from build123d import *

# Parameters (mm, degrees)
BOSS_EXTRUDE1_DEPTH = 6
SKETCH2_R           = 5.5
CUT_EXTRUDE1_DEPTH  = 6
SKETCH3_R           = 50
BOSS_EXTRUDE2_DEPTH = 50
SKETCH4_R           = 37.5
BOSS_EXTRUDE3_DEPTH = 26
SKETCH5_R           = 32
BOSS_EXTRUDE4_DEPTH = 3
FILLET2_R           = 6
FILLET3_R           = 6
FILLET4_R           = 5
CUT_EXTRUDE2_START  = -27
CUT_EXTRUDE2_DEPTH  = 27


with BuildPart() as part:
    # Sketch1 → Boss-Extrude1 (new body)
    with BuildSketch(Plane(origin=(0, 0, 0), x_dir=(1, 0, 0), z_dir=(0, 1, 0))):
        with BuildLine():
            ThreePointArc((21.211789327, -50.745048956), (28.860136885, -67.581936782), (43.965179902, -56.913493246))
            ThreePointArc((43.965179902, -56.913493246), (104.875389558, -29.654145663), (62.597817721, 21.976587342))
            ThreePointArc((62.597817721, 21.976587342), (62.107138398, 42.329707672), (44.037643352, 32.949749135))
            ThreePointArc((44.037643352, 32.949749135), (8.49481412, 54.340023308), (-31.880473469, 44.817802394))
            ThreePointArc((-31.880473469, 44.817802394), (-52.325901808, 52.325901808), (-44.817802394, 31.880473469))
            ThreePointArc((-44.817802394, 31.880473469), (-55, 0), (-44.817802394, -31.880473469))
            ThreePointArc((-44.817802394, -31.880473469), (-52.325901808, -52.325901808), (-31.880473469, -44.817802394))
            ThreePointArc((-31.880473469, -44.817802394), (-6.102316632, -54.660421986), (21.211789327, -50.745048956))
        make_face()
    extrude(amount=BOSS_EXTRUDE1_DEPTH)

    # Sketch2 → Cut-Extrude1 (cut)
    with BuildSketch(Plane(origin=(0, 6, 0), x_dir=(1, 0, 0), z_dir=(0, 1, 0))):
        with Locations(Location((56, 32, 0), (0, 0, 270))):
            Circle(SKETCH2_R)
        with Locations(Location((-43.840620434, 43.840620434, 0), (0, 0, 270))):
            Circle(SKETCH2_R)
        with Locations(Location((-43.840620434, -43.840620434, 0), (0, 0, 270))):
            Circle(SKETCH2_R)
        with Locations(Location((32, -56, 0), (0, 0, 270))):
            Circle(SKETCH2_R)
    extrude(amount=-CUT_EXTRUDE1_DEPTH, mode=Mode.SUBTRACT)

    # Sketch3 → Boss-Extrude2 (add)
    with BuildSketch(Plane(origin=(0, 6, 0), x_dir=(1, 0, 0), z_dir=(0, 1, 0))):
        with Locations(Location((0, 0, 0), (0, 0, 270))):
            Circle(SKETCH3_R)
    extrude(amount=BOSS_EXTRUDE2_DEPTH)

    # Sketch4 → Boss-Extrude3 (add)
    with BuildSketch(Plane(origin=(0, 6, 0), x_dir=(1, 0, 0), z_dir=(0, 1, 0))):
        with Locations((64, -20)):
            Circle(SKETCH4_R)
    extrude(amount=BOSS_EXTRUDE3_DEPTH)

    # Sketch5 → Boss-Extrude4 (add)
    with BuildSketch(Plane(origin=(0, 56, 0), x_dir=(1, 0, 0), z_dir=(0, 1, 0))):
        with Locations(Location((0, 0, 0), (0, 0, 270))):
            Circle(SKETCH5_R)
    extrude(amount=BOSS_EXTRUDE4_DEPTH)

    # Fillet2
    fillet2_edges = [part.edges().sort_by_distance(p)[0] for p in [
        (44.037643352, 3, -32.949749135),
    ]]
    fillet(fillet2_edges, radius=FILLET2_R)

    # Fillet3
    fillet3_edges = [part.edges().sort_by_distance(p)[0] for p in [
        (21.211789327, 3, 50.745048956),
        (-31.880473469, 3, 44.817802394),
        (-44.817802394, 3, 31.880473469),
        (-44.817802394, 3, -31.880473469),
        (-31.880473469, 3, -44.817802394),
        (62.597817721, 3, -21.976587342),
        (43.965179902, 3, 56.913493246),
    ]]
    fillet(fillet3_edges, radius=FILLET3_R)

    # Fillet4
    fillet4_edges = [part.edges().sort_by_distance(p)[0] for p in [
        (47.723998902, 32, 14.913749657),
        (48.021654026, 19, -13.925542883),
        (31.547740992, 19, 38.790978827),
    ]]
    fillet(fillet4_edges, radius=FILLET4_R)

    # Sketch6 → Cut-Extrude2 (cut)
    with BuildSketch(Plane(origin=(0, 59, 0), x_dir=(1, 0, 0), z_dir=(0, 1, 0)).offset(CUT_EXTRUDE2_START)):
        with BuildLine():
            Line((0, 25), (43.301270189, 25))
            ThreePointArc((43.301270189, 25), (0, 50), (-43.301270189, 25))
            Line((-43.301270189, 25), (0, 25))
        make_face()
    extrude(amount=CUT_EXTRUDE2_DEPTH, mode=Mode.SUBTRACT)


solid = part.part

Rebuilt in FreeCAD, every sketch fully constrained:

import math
import FreeCAD as App
import Part
import Sketcher


def edges_at(feature, points):
    """Names of the edges that pass closest to the given points."""
    edges = feature.Shape.Edges
    near = lambda p: min(range(len(edges)), key=lambda i: edges[i].distToShape(Part.Vertex(*p))[0])
    return sorted({f"Edge{near(p) + 1}" for p in points})

doc = App.newDocument("Part")
body = doc.addObject("PartDesign::Body", "Body")

# Sketch on XZ plane
sketch1 = doc.addObject("Sketcher::SketchObject", "Sketch")
body.addObject(sketch1)
sketch1.AttachmentSupport = (doc.XZ_Plane, [""])
sketch1.MapMode = "FlatFace"
sketch1.addGeometry([
    Part.ArcOfCircle(Part.Circle(App.Vector(32, 56, 0), App.Vector(0, 0, 1), 12), math.radians(4.365833), math.radians(205.970772)),  # 0
    Part.ArcOfCircle(Part.Circle(App.Vector(64, 20, 0), App.Vector(0, 0, 1), 42), math.radians(-91.913192), math.radians(118.490923)),  # 1
    Part.ArcOfCircle(Part.Circle(App.Vector(56, -32, 0), App.Vector(0, 0, 1), 12), math.radians(-175.460534), math.radians(56.645462)),  # 2
    Part.ArcOfCircle(Part.Circle(App.Vector(0, 0, 0), App.Vector(0, 0, 1), 55), math.radians(-125.425576), math.radians(-36.80449)),  # 3
    Part.ArcOfCircle(Part.Circle(App.Vector(-43.84062, -43.84062, 0), App.Vector(0, 0, 1), 12), math.radians(94.670872), math.radians(355.329128)),  # 4
    Part.ArcOfCircle(Part.Circle(App.Vector(0, 0, 0), App.Vector(0, 0, 1), 55), math.radians(144.574424), math.radians(215.425576)),  # 5
    Part.ArcOfCircle(Part.Circle(App.Vector(-43.84062, 43.84062, 0), App.Vector(0, 0, 1), 12), math.radians(4.670872), math.radians(265.329128)),  # 6
    Part.ArcOfCircle(Part.Circle(App.Vector(0, 0, 0), App.Vector(0, 0, 1), 55), math.radians(67.314728), math.radians(125.425576)),  # 7
], False)
sketch1.addConstraint([
    Sketcher.Constraint("Coincident", 0, 1, 1, 2),
    Sketcher.Constraint("Coincident", 1, 1, 2, 2),
    Sketcher.Constraint("Coincident", 2, 1, 3, 2),
    Sketcher.Constraint("Coincident", 3, 1, 4, 2),
    Sketcher.Constraint("Coincident", 4, 1, 5, 2),
    Sketcher.Constraint("Coincident", 5, 1, 6, 2),
    Sketcher.Constraint("Coincident", 6, 1, 7, 2),
    Sketcher.Constraint("Coincident", 7, 1, 0, 2),
    Sketcher.Constraint("Coincident", 3, 3, -1, 1),
    Sketcher.Constraint("Coincident", 5, 3, -1, 1),
    Sketcher.Constraint("Coincident", 7, 3, -1, 1),
    Sketcher.Constraint("Equal", 0, 2),
    Sketcher.Constraint("Equal", 2, 4),
    Sketcher.Constraint("Equal", 3, 5),
    Sketcher.Constraint("Equal", 4, 6),
    Sketcher.Constraint("Equal", 5, 7),
    Sketcher.Constraint("Symmetric", 4, 3, 6, 3, -1),
    Sketcher.Constraint("Radius", 0, 12.0),
    Sketcher.Constraint("Radius", 1, 42.0),
    Sketcher.Constraint("Radius", 3, 55.0),
    Sketcher.Constraint("DistanceX", -1, 1, 0, 3, 32.0),
    Sketcher.Constraint("DistanceY", -1, 1, 0, 3, 56.0),
    Sketcher.Constraint("DistanceX", -1, 1, 1, 3, 64.0),
    Sketcher.Constraint("DistanceY", -1, 1, 1, 3, 20.0),
    Sketcher.Constraint("DistanceX", -1, 1, 2, 3, 56.0),
    Sketcher.Constraint("DistanceY", 2, 3, -1, 1, 32.0),
    Sketcher.Constraint("DistanceX", 4, 3, -1, 1, 43.84062),
    Sketcher.Constraint("DistanceY", 4, 3, -1, 1, 43.84062),
])
pad1 = doc.addObject("PartDesign::Pad", "Pad")
body.addObject(pad1)
pad1.Profile = sketch1
pad1.Length = 6
pad1.Reversed = True

# Sketch on XZ plane
sketch2 = doc.addObject("Sketcher::SketchObject", "Sketch001")
body.addObject(sketch2)
sketch2.AttachmentSupport = (doc.XZ_Plane, [""])
sketch2.MapMode = "FlatFace"
sketch2.AttachmentOffset = App.Placement(App.Vector(0, 0, -6), App.Rotation())
sketch2.addGeometry([
    Part.Circle(App.Vector(56, -32, 0), App.Vector(0, 0, 1), 5.5),
    Part.Circle(App.Vector(-43.84062, -43.84062, 0), App.Vector(0, 0, 1), 5.5),
    Part.Circle(App.Vector(-43.84062, 43.84062, 0), App.Vector(0, 0, 1), 5.5),
    Part.Circle(App.Vector(32, 56, 0), App.Vector(0, 0, 1), 5.5),
], False)
sketch2.addConstraint([
    Sketcher.Constraint("Equal", 0, 1),
    Sketcher.Constraint("Equal", 1, 2),
    Sketcher.Constraint("Equal", 2, 3),
    Sketcher.Constraint("Symmetric", 1, 3, 2, 3, -1),
    Sketcher.Constraint("Diameter", 0, 11.0),
    Sketcher.Constraint("DistanceX", -1, 1, 0, 3, 56.0),
    Sketcher.Constraint("DistanceY", 0, 3, -1, 1, 32.0),
    Sketcher.Constraint("DistanceX", -1, 1, 3, 3, 32.0),
    Sketcher.Constraint("DistanceY", -1, 1, 3, 3, 56.0),
    Sketcher.Constraint("DistanceX", 1, 3, -1, 1, 43.84062),
    Sketcher.Constraint("DistanceY", 1, 3, -1, 1, 43.84062),
])
pocket1 = doc.addObject("PartDesign::Pocket", "Pocket")
body.addObject(pocket1)
pocket1.Profile = sketch2
pocket1.Length = 6
pocket1.Reversed = True

# Sketch on XZ plane
sketch3 = doc.addObject("Sketcher::SketchObject", "Sketch002")
body.addObject(sketch3)
sketch3.AttachmentSupport = (doc.XZ_Plane, [""])
sketch3.MapMode = "FlatFace"
sketch3.AttachmentOffset = App.Placement(App.Vector(0, 0, -6), App.Rotation())
sketch3.addGeometry(Part.Circle(App.Vector(0, 0, 0), App.Vector(0, 0, 1), 50), False)
sketch3.addConstraint([
    Sketcher.Constraint("Coincident", 0, 3, -1, 1),
    Sketcher.Constraint("Diameter", 0, 100.0),
])
pad2 = doc.addObject("PartDesign::Pad", "Pad001")
body.addObject(pad2)
pad2.Profile = sketch3
pad2.Length = 50
pad2.Reversed = True

# Sketch on XZ plane
sketch4 = doc.addObject("Sketcher::SketchObject", "Sketch003")
body.addObject(sketch4)
sketch4.AttachmentSupport = (doc.XZ_Plane, [""])
sketch4.MapMode = "FlatFace"
sketch4.AttachmentOffset = App.Placement(App.Vector(0, 0, -6), App.Rotation())
sketch4.addGeometry(Part.Circle(App.Vector(64, 20, 0), App.Vector(0, 0, 1), 37.5), False)
sketch4.addConstraint([
    Sketcher.Constraint("Diameter", 0, 75.0),
    Sketcher.Constraint("DistanceX", -1, 1, 0, 3, 64.0),
    Sketcher.Constraint("DistanceY", -1, 1, 0, 3, 20.0),
])
pad3 = doc.addObject("PartDesign::Pad", "Pad002")
body.addObject(pad3)
pad3.Profile = sketch4
pad3.Length = 26
pad3.Reversed = True

# Sketch on XZ plane
sketch5 = doc.addObject("Sketcher::SketchObject", "Sketch004")
body.addObject(sketch5)
sketch5.AttachmentSupport = (doc.XZ_Plane, [""])
sketch5.MapMode = "FlatFace"
sketch5.AttachmentOffset = App.Placement(App.Vector(0, 0, -56), App.Rotation())
sketch5.addGeometry(Part.Circle(App.Vector(0, 0, 0), App.Vector(0, 0, 1), 32), False)
sketch5.addConstraint([
    Sketcher.Constraint("Coincident", 0, 3, -1, 1),
    Sketcher.Constraint("Diameter", 0, 64.0),
])
pad4 = doc.addObject("PartDesign::Pad", "Pad003")
body.addObject(pad4)
pad4.Profile = sketch5
pad4.Length = 3
pad4.Reversed = True
doc.recompute()

fillet = doc.addObject("PartDesign::Fillet", "Fillet")
body.addObject(fillet)
fillet.Base = (pad4, edges_at(pad4, [(44.038, 3, -32.95)]))
fillet.Radius = 6
doc.recompute()

fillet2 = doc.addObject("PartDesign::Fillet", "Fillet001")
body.addObject(fillet2)
fillet2.Base = (fillet, edges_at(fillet, [
    (21.212, 3, 50.745),
    (-31.88, 3, 44.818),
    (-44.818, 3, 31.88),
    (-44.818, 3, -31.88),
    (-31.88, 3, -44.818),
    (62.598, 3, -21.977),
    (43.965, 3, 56.913),
]))
fillet2.Radius = 6
doc.recompute()

fillet3 = doc.addObject("PartDesign::Fillet", "Fillet002")
body.addObject(fillet3)
fillet3.Base = (fillet2, edges_at(fillet2, [(47.724, 32, 14.914), (48.022, 19, -13.926), (31.548, 19, 38.791)]))
fillet3.Radius = 5

# Sketch on XZ plane
sketch6 = doc.addObject("Sketcher::SketchObject", "Sketch005")
body.addObject(sketch6)
sketch6.AttachmentSupport = (doc.XZ_Plane, [""])
sketch6.MapMode = "FlatFace"
sketch6.AttachmentOffset = App.Placement(App.Vector(0, 0, -32), App.Rotation())
sketch6.addGeometry([
    Part.ArcOfCircle(Part.Circle(App.Vector(0, 0, 0), App.Vector(0, 0, 1), 50), math.radians(-150), math.radians(-30)),
    Part.LineSegment(App.Vector(-43.30127, -25, 0), App.Vector(43.30127, -25, 0)),
], False)
sketch6.addConstraint([
    Sketcher.Constraint("Coincident", 0, 1, 1, 1),
    Sketcher.Constraint("Coincident", 1, 2, 0, 2),
    Sketcher.Constraint("Horizontal", 1),
    Sketcher.Constraint("Coincident", 0, 3, -1, 1),
    Sketcher.Constraint("Radius", 0, 50.0),
    Sketcher.Constraint("DistanceY", 0, 1, -1, 1, 25.0),
])
pocket2 = doc.addObject("PartDesign::Pocket", "Pocket001")
body.addObject(pocket2)
pocket2.Profile = sketch6
pocket2.Length = 27

doc.recompute()
